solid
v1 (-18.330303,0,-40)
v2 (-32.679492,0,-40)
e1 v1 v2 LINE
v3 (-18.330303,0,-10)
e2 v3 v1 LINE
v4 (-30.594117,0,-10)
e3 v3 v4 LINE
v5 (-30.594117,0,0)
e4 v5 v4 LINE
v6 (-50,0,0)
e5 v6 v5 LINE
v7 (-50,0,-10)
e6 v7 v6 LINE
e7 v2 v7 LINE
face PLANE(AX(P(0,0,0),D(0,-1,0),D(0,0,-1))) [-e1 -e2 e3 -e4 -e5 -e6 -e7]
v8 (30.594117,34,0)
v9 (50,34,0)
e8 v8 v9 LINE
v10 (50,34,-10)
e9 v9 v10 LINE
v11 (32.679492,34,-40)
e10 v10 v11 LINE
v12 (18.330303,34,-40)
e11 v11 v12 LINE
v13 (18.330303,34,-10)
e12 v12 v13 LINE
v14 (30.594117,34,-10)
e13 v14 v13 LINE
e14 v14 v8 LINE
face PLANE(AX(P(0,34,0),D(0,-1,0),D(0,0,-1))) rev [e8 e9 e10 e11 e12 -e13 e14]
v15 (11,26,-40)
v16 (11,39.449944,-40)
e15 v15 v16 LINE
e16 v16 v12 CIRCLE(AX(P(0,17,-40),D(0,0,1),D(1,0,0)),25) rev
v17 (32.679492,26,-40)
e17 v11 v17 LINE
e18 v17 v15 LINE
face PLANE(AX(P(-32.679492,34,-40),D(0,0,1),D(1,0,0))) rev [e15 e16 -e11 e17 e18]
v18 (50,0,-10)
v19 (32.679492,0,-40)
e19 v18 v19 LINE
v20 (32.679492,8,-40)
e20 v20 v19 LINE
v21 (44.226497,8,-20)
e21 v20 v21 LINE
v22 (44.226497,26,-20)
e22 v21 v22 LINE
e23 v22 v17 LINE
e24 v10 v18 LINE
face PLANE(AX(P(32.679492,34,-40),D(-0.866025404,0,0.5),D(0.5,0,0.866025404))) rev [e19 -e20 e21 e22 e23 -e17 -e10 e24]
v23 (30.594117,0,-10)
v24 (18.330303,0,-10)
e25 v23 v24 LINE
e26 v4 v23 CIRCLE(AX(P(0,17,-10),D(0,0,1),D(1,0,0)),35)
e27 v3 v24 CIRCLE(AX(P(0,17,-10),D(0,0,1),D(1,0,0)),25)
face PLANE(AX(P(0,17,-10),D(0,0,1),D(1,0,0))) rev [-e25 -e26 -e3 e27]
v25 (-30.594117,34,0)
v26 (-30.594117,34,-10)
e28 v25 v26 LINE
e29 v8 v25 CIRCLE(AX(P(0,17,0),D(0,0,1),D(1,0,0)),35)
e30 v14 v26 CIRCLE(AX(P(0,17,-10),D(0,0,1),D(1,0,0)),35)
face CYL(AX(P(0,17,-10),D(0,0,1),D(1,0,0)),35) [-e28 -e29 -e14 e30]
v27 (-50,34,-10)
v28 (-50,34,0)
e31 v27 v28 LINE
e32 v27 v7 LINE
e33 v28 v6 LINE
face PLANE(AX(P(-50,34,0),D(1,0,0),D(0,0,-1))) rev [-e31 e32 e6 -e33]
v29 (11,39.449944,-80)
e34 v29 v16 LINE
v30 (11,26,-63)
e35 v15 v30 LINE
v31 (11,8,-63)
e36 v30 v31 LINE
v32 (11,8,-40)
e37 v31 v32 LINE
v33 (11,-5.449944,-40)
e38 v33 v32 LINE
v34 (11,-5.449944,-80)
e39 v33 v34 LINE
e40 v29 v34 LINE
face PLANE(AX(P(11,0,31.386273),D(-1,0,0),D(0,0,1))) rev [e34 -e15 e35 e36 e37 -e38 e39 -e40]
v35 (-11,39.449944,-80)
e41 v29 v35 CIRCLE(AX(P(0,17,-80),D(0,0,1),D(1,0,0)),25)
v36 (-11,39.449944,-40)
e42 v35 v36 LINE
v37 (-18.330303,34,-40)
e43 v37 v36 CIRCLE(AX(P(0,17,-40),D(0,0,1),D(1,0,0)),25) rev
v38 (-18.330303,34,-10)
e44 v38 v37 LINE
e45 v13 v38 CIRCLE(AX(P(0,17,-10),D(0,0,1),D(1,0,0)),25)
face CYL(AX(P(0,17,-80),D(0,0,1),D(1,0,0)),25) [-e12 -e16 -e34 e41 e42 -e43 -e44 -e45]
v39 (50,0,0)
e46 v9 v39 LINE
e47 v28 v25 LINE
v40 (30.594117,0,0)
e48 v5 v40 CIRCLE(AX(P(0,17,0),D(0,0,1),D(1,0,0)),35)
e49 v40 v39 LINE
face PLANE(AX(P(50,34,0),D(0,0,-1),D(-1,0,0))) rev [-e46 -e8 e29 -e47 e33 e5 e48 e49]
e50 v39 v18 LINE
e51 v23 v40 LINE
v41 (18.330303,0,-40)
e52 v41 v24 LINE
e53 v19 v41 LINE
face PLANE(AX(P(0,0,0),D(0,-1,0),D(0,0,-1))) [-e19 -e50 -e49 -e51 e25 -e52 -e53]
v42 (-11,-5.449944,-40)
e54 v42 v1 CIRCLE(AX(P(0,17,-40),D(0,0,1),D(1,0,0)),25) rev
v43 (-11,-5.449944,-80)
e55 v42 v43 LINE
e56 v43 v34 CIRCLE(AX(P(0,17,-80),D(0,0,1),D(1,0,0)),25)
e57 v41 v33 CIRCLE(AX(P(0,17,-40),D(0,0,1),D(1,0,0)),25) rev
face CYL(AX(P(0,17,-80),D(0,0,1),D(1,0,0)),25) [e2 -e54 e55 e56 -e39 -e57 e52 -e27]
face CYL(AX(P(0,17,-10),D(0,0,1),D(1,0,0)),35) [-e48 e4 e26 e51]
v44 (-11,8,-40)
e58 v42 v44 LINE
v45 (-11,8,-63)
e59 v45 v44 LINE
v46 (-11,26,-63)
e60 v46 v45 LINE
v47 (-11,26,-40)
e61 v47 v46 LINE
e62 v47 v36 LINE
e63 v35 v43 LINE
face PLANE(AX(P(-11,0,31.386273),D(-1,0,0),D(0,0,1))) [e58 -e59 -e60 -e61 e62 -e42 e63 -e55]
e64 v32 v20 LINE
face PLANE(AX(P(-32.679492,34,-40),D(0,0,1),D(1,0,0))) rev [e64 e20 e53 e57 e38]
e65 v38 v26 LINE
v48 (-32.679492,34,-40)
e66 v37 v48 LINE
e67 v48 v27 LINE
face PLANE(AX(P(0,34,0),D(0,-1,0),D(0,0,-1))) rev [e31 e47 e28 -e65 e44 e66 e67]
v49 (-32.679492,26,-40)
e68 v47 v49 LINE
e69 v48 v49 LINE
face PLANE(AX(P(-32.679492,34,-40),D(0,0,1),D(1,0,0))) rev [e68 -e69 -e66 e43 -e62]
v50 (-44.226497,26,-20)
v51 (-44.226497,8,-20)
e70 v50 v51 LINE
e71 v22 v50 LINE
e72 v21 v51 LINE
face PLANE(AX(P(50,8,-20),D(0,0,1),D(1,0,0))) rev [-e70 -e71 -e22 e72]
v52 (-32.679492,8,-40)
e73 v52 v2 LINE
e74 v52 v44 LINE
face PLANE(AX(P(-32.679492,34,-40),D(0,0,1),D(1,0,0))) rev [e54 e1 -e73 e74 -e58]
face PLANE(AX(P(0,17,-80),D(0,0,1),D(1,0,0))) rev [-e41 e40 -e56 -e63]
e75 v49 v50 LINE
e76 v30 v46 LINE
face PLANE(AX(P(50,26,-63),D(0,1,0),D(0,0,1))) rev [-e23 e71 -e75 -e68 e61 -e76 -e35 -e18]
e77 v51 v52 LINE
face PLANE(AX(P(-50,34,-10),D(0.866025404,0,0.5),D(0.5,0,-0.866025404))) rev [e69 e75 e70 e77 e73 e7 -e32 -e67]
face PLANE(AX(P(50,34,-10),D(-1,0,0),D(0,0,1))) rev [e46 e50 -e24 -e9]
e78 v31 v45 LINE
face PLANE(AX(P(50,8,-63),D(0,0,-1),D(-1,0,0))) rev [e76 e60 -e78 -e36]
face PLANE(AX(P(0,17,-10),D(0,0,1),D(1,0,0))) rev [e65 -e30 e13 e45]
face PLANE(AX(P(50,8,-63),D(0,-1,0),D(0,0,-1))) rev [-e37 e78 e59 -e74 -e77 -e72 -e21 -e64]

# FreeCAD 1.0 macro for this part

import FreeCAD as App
import Part
import Sketcher
from FreeCAD import Vector
Q = App.Units.Quantity


def add_polygon(sketch, points):
    """Adds a closed chain of lines whose ends are joined by coincident constraints."""
    first, n = sketch.GeometryCount, len(points)
    for a, b in zip(points, points[1:] + points[:1]):
        sketch.addGeometry(Part.LineSegment(App.Vector(*a, 0), App.Vector(*b, 0)), False)
    for i in range(n):
        sketch.addConstraint(Sketcher.Constraint("Coincident", first + i, 2, first + (i + 1) % n, 1))

doc = App.newDocument("Part")
body = doc.addObject("PartDesign::Body", "Body")

sketch1 = body.newObject("Sketcher::SketchObject", "Sketch")
sketch1.AttachmentSupport = (doc.getObject("XZ_Plane"), [""])
sketch1.MapMode = "FlatFace"
add_polygon(sketch1, [(-50, 0), (50, 0), (50, -10), (32.679492, -40), (-32.679492, -40), (-50, -10)])
sketch1.addConstraint([
    Sketcher.Constraint("Horizontal", 0),
    Sketcher.Constraint("Vertical", 1),
    Sketcher.Constraint("Horizontal", 3),
    Sketcher.Constraint("Vertical", 5),
    Sketcher.Constraint("Symmetric", 0, 2, 5, 2, -1, 1),
    Sketcher.Constraint("Horizontal", 1, 2, 4, 2),
    Sketcher.Constraint("Equal", 2, 4),
    Sketcher.Constraint("DistanceX", 0, 1, 0, 2, Q("100 mm")),
    Sketcher.Constraint("DistanceY", 1, 2, 1, 1, Q("10 mm")),
    Sketcher.Constraint("Angle", 2, Q("-120 deg")),
    Sketcher.Constraint("DistanceY", 2, 2, -1, 1, Q("40 mm")),
])
pad1 = body.newObject("PartDesign::Pad", "Pad")
pad1.Profile = sketch1
pad1.Length = 34
pad1.Reversed = True

sketch2 = body.newObject("Sketcher::SketchObject", "Sketch001")
sketch2.AttachmentSupport = (doc.getObject("XY_Plane"), [""])
sketch2.MapMode = "FlatFace"
sketch2.addGeometry(Part.Circle(Vector(0, 17, 0), Vector(0, 0, 1), 35), False)
sketch2.addConstraint([
    Sketcher.Constraint("PointOnObject", 0, 3, -2),
    Sketcher.Constraint("Diameter", 0, Q("70 mm")),
    Sketcher.Constraint("DistanceY", -1, 1, 0, 3, Q("17 mm")),
])
pad2 = body.newObject("PartDesign::Pad", "Pad001")
pad2.Profile = sketch2
pad2.Length = 10
pad2.Reversed = True

sketch3 = body.newObject("Sketcher::SketchObject", "Sketch002")
sketch3.AttachmentSupport = (doc.getObject("XY_Plane"), [""])
sketch3.MapMode = "FlatFace"
sketch3.addGeometry(Part.Circle(Vector(0, 17, 0), Vector(0, 0, 1), 25), False)
sketch3.addConstraint([
    Sketcher.Constraint("PointOnObject", 0, 3, -2),
    Sketcher.Constraint("Diameter", 0, Q("50 mm")),
    Sketcher.Constraint("DistanceY", -1, 1, 0, 3, Q("17 mm")),
])
pad3 = body.newObject("PartDesign::Pad", "Pad002")
pad3.Profile = sketch3
pad3.Length = 80
pad3.Reversed = True

sketch4 = body.newObject("Sketcher::SketchObject", "Sketch003")
sketch4.AttachmentSupport = (doc.getObject("XY_Plane"), [""])
sketch4.MapMode = "FlatFace"
sketch4.AttachmentOffset = App.Placement(Vector(0, 0, -40), App.Rotation())
add_polygon(sketch4, [(11, 52), (25, 52), (25, -18), (11, -18)])
add_polygon(sketch4, [(-11, -18), (-25, -18), (-25, 52), (-11, 52)])
sketch4.addConstraint([
    Sketcher.Constraint("Horizontal", 0),
    Sketcher.Constraint("Vertical", 1),
    Sketcher.Constraint("Horizontal", 2),
    Sketcher.Constraint("Vertical", 3),
    Sketcher.Constraint("Horizontal", 4),
    Sketcher.Constraint("Vertical", 5),
    Sketcher.Constraint("Horizontal", 6),
    Sketcher.Constraint("Vertical", 7),
    Sketcher.Constraint("Symmetric", 1, 2, 4, 2, -2),
    Sketcher.Constraint("Symmetric", 3, 2, 6, 2, -2),
    Sketcher.Constraint("DistanceX", 0, 1, 0, 2, Q("14 mm")),
    Sketcher.Constraint("DistanceY", 1, 2, 1, 1, Q("70 mm")),
    Sketcher.Constraint("DistanceX", -1, 1, 0, 2, Q("25 mm")),
    Sketcher.Constraint("DistanceY", -1, 1, 0, 2, Q("52 mm")),
])
pocket1 = body.newObject("PartDesign::Pocket", "Pocket")
pocket1.Profile = sketch4
pocket1.Length = 40

sketch5 = body.newObject("Sketcher::SketchObject", "Sketch004")
sketch5.AttachmentSupport = (doc.getObject("YZ_Plane"), [""])
sketch5.MapMode = "FlatFace"
sketch5.AttachmentOffset = App.Placement(Vector(0, 0, -11), App.Rotation())
add_polygon(sketch5, [(26, -63), (8, -63), (8, -20), (26, -20)])
sketch5.addConstraint([
    Sketcher.Constraint("Horizontal", 0),
    Sketcher.Constraint("Vertical", 1),
    Sketcher.Constraint("Horizontal", 2),
    Sketcher.Constraint("Vertical", 3),
    Sketcher.Constraint("DistanceX", 0, 2, 0, 1, Q("18 mm")),
    Sketcher.Constraint("DistanceY", 1, 1, 1, 2, Q("43 mm")),
    Sketcher.Constraint("DistanceX", -1, 1, 0, 2, Q("8 mm")),
    Sketcher.Constraint("DistanceY", 0, 2, -1, 1, Q("63 mm")),
])
pocket2 = body.newObject("PartDesign::Pocket", "Pocket001")
pocket2.Profile = sketch5
pocket2.Type = "ThroughAll"
pocket2.Midplane = True

doc.recompute()
